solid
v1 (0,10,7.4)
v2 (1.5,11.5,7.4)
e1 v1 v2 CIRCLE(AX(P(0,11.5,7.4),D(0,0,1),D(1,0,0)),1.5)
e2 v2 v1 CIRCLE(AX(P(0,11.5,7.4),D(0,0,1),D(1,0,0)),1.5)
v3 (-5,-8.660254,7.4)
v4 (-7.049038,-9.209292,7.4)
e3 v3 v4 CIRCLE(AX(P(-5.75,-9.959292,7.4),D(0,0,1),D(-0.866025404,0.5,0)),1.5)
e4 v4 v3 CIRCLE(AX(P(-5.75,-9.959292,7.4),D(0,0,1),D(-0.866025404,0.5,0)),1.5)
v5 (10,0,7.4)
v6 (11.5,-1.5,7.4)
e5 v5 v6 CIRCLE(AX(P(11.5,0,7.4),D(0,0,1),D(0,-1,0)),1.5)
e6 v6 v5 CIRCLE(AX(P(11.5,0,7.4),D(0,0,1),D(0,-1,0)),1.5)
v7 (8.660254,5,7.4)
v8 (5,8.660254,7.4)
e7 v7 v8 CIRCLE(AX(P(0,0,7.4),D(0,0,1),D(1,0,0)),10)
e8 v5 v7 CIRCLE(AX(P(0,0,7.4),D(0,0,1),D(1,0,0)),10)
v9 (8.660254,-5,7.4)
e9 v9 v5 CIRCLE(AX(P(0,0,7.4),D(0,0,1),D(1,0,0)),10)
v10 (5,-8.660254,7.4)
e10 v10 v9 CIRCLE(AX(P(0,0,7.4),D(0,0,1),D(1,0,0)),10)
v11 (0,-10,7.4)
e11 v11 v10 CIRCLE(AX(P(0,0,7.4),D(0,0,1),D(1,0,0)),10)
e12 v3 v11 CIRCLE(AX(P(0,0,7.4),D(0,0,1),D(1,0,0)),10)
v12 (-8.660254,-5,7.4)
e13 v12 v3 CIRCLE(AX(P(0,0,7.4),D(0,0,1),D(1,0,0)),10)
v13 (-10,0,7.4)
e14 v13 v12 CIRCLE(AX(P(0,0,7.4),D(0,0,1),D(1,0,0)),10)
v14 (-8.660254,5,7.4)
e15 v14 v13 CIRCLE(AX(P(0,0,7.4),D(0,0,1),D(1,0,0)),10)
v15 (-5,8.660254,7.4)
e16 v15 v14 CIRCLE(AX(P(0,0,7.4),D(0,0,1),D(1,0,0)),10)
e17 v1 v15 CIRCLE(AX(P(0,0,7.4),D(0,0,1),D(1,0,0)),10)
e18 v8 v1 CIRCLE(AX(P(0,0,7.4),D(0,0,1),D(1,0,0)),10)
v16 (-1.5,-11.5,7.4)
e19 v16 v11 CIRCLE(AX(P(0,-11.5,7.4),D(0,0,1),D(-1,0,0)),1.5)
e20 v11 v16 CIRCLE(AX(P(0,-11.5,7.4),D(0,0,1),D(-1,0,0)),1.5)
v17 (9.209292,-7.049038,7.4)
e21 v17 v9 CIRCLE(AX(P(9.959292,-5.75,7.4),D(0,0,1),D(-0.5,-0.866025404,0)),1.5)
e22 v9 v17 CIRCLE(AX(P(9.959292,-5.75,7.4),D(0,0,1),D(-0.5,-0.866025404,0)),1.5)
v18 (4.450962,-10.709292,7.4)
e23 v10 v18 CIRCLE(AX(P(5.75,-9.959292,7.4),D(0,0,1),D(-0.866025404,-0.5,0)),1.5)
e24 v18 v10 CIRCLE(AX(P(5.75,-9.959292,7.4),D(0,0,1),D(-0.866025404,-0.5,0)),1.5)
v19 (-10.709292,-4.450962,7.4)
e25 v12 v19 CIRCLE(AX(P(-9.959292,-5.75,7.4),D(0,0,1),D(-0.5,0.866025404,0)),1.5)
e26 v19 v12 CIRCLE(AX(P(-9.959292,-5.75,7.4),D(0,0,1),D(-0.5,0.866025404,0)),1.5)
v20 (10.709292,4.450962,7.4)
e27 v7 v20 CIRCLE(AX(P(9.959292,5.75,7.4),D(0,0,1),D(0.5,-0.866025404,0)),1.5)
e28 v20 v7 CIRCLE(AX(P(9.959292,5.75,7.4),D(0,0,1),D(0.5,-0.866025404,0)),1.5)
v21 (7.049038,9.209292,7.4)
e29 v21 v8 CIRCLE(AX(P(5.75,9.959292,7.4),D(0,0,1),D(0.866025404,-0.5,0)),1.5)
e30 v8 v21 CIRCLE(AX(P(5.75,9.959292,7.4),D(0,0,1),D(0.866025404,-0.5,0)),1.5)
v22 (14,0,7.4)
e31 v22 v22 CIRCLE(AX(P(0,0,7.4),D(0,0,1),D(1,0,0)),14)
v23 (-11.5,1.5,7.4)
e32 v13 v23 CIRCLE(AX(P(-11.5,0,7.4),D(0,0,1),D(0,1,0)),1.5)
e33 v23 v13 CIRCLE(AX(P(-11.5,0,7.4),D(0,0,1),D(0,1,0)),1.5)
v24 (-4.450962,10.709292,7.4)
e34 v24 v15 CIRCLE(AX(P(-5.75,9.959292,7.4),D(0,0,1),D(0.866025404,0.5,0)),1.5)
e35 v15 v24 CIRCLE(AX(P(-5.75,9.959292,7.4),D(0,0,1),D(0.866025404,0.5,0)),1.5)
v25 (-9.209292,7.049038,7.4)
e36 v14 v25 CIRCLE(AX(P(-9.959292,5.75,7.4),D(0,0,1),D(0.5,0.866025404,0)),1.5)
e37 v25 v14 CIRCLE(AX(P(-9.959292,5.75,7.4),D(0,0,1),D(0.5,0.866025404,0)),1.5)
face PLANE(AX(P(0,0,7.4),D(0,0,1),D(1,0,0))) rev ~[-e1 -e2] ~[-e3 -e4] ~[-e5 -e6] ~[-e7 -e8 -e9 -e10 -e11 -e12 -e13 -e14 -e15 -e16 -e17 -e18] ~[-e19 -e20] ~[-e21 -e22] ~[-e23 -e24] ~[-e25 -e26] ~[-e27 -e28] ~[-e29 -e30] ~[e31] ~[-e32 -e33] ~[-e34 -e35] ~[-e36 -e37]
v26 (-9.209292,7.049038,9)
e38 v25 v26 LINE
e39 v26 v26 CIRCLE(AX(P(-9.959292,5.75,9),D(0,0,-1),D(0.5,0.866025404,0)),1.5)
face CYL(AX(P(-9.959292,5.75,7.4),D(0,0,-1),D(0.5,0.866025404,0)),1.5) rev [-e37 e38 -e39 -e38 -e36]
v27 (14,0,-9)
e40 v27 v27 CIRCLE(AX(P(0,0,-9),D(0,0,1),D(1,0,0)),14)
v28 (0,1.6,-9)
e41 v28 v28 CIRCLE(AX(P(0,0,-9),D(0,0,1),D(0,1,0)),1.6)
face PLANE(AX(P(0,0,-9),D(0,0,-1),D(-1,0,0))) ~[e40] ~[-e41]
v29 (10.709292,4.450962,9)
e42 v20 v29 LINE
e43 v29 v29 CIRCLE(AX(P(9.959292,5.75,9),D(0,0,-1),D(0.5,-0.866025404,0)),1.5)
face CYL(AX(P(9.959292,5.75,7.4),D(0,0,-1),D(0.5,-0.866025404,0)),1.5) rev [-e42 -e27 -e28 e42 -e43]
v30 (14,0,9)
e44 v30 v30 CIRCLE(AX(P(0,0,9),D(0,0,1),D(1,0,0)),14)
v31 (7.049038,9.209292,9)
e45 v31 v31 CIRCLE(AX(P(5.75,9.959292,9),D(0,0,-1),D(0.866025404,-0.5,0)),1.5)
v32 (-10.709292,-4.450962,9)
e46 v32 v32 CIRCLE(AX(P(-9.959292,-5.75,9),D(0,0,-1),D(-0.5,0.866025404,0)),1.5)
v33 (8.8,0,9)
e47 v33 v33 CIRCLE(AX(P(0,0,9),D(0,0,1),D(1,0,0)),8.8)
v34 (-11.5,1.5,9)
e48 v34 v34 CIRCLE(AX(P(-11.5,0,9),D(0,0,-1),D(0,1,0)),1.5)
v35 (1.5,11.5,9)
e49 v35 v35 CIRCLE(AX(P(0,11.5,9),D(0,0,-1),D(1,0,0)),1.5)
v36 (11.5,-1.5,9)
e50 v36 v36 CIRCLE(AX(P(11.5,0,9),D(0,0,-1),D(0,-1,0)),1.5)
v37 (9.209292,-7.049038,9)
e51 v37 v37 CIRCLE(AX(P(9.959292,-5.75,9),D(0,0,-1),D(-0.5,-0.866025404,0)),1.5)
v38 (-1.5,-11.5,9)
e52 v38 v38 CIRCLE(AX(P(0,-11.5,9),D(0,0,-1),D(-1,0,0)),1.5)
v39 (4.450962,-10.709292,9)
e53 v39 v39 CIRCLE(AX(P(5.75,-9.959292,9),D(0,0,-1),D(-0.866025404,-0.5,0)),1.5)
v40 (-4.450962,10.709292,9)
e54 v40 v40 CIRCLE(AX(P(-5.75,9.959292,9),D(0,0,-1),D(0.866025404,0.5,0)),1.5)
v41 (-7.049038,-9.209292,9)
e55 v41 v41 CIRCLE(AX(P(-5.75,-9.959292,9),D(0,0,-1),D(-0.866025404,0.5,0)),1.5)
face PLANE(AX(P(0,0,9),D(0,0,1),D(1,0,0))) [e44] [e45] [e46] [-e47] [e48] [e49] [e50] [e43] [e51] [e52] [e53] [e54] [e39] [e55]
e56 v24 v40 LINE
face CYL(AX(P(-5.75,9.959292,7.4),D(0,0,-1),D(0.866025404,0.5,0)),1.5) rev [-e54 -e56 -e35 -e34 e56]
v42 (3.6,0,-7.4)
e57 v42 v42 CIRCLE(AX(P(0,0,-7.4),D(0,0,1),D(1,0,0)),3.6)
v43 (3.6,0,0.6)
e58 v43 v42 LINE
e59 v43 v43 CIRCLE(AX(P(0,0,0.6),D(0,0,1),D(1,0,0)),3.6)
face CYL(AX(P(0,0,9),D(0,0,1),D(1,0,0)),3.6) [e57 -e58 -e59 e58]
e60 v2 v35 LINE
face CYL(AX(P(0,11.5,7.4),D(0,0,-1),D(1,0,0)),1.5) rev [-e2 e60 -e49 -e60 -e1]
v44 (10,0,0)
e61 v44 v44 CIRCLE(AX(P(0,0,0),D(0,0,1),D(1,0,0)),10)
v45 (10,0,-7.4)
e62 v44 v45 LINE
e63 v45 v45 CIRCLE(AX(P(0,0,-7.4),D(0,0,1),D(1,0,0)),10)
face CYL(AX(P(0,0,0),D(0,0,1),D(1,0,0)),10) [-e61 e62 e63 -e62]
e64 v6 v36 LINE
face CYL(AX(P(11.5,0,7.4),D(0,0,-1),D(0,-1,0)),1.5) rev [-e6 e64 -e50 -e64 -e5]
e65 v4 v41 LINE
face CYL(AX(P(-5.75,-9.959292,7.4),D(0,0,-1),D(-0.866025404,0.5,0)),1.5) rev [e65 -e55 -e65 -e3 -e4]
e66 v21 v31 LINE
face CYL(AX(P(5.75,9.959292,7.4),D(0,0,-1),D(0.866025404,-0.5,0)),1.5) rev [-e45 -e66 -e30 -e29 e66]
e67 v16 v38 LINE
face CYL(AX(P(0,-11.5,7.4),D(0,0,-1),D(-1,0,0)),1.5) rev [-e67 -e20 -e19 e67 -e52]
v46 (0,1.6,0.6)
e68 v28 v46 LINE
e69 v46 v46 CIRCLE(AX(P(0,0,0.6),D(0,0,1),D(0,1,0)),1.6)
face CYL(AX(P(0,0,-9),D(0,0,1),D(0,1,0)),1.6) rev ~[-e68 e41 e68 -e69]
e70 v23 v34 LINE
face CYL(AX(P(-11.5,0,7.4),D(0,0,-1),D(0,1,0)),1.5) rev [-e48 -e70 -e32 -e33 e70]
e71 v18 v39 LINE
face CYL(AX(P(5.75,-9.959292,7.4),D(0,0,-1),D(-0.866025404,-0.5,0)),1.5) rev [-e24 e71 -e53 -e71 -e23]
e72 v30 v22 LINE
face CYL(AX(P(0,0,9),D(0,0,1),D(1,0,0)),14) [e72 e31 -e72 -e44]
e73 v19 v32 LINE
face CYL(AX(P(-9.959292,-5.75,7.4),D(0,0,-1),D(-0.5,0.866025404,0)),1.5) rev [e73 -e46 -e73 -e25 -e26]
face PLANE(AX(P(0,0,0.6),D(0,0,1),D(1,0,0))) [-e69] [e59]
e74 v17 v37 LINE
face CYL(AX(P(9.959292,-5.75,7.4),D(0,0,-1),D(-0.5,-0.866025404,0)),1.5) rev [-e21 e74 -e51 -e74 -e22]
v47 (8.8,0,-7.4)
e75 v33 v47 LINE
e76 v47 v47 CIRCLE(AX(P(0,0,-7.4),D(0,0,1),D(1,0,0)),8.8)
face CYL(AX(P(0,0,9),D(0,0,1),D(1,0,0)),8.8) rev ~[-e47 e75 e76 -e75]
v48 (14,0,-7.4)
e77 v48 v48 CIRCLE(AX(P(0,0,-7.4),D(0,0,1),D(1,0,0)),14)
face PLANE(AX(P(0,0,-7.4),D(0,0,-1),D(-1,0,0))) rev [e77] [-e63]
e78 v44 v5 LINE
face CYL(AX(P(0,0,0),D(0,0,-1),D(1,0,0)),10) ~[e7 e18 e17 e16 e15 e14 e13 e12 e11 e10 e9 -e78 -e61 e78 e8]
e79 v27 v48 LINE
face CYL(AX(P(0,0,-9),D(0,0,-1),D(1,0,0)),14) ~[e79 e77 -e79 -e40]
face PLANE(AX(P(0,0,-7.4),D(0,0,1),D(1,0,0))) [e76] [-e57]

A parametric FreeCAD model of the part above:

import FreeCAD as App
import Part
import Sketcher
Q = App.Units.Quantity

doc = App.newDocument("Part")
body = doc.addObject("PartDesign::Body", "Body")

sketch1 = body.newObject("Sketcher::SketchObject", "Sketch")
sketch1.AttachmentSupport = (doc.getObject("XY_Plane"), [""])
sketch1.MapMode = "FlatFace"
sketch1.addGeometry(Part.Circle(App.Vector(0, 0, 0), App.Vector(0, 0, 1), 10), False)
sketch1.addConstraint(Sketcher.Constraint("Coincident", 0, 3, -1, 1))
sketch1.addConstraint(Sketcher.Constraint("Diameter", 0, Q("20 mm")))
pad1 = body.newObject("PartDesign::Pad", "Pad")
pad1.Profile = sketch1
pad1.Length = 18
pad1.Midplane = True

sketch2 = body.newObject("Sketcher::SketchObject", "Sketch001")
sketch2.AttachmentSupport = (doc.getObject("XY_Plane"), [""])
sketch2.MapMode = "FlatFace"
sketch2.AttachmentOffset = App.Placement(App.Vector(0, 0, -9), App.Rotation())
sketch2.addGeometry(Part.Circle(App.Vector(0, 0, 0), App.Vector(0, 0, 1), 1.6), False)
sketch2.addConstraint(Sketcher.Constraint("Coincident", 0, 3, -1, 1))
sketch2.addConstraint(Sketcher.Constraint("Diameter", 0, Q("3.2 mm")))
doc.recompute()
hole = body.newObject("PartDesign::Hole", "Hole")
hole.Profile = sketch2
hole.ThreadType = "None"
hole.Diameter = 3.2
hole.DepthType = "ThroughAll"
hole.Reversed = True

sketch3 = body.newObject("Sketcher::SketchObject", "Sketch002")
sketch3.AttachmentSupport = (doc.getObject("XY_Plane"), [""])
sketch3.MapMode = "FlatFace"
sketch3.AttachmentOffset = App.Placement(App.Vector(0, 0, 9), App.Rotation())
sketch3.addGeometry(Part.Circle(App.Vector(0, 0, 0), App.Vector(0, 0, 1), 14), False)
sketch3.addGeometry(Part.Circle(App.Vector(0, 0, 0), App.Vector(0, 0, 1), 10), False)
sketch3.addConstraint(Sketcher.Constraint("Coincident", 0, 3, -1, 1))
sketch3.addConstraint(Sketcher.Constraint("Coincident", 1, 3, -1, 1))
sketch3.addConstraint(Sketcher.Constraint("Diameter", 0, Q("28 mm")))
sketch3.addConstraint(Sketcher.Constraint("Diameter", 1, Q("20 mm")))
pad2 = body.newObject("PartDesign::Pad", "Pad001")
pad2.Profile = sketch3
pad2.Length = 1.6
pad2.Reversed = True
doc.recompute()

mirrored = body.newObject("PartDesign::Mirrored", "Mirrored")
mirrored.Originals = [pad2]
mirrored.MirrorPlane = (doc.getObject("XY_Plane"), [""])
body.Tip = mirrored

sketch4 = body.newObject("Sketcher::SketchObject", "Sketch003")
sketch4.AttachmentSupport = (doc.getObject("XY_Plane"), [""])
sketch4.MapMode = "FlatFace"
sketch4.AttachmentOffset = App.Placement(App.Vector(0, 0, 9), App.Rotation())
sketch4.addGeometry(Part.Circle(App.Vector(0, 0, 0), App.Vector(0, 0, 1), 8.8), False)
sketch4.addGeometry(Part.Circle(App.Vector(0, 0, 0), App.Vector(0, 0, 1), 3.6), False)
sketch4.addConstraint(Sketcher.Constraint("Coincident", 0, 3, -1, 1))
sketch4.addConstraint(Sketcher.Constraint("Coincident", 1, 3, -1, 1))
sketch4.addConstraint(Sketcher.Constraint("Diameter", 0, Q("17.6 mm")))
sketch4.addConstraint(Sketcher.Constraint("Diameter", 1, Q("7.2 mm")))
pocket1 = body.newObject("PartDesign::Pocket", "Pocket")
pocket1.Profile = sketch4
pocket1.Length = 16.4

sketch5 = body.newObject("Sketcher::SketchObject", "Sketch004")
sketch5.AttachmentSupport = (doc.getObject("XY_Plane"), [""])
sketch5.MapMode = "FlatFace"
sketch5.AttachmentOffset = App.Placement(App.Vector(0, 0, 9), App.Rotation())
sketch5.addGeometry(Part.Circle(App.Vector(0, 0, 0), App.Vector(0, 0, 1), 3.6), False)
sketch5.addConstraint(Sketcher.Constraint("Coincident", 0, 3, -1, 1))
sketch5.addConstraint(Sketcher.Constraint("Diameter", 0, Q("7.2 mm")))
pocket2 = body.newObject("PartDesign::Pocket", "Pocket001")
pocket2.Profile = sketch5
pocket2.Length = 8.4

sketch6 = body.newObject("Sketcher::SketchObject", "Sketch005")
sketch6.AttachmentSupport = (doc.getObject("XY_Plane"), [""])
sketch6.MapMode = "FlatFace"
sketch6.AttachmentOffset = App.Placement(App.Vector(0, 0, 7.4), App.Rotation())
sketch6.addGeometry(Part.Circle(App.Vector(0, 11.5, 0), App.Vector(0, 0, 1), 1.5), False)
sketch6.addConstraint(Sketcher.Constraint("PointOnObject", 0, 3, -2))
sketch6.addConstraint(Sketcher.Constraint("Diameter", 0, Q("3 mm")))
sketch6.addConstraint(Sketcher.Constraint("DistanceY", -1, 1, 0, 3, Q("11.5 mm")))
pocket3 = body.newObject("PartDesign::Pocket", "Pocket002")
pocket3.Profile = sketch6
pocket3.Type = "ThroughAll"
pocket3.Reversed = True
doc.recompute()

polarpattern = body.newObject("PartDesign::PolarPattern", "PolarPattern")
polarpattern.Originals = [pocket3]
polarpattern.Axis = (doc.getObject("Z_Axis"), [""])
polarpattern.Angle = 360
polarpattern.Occurrences = 12
body.Tip = polarpattern

doc.recompute()
